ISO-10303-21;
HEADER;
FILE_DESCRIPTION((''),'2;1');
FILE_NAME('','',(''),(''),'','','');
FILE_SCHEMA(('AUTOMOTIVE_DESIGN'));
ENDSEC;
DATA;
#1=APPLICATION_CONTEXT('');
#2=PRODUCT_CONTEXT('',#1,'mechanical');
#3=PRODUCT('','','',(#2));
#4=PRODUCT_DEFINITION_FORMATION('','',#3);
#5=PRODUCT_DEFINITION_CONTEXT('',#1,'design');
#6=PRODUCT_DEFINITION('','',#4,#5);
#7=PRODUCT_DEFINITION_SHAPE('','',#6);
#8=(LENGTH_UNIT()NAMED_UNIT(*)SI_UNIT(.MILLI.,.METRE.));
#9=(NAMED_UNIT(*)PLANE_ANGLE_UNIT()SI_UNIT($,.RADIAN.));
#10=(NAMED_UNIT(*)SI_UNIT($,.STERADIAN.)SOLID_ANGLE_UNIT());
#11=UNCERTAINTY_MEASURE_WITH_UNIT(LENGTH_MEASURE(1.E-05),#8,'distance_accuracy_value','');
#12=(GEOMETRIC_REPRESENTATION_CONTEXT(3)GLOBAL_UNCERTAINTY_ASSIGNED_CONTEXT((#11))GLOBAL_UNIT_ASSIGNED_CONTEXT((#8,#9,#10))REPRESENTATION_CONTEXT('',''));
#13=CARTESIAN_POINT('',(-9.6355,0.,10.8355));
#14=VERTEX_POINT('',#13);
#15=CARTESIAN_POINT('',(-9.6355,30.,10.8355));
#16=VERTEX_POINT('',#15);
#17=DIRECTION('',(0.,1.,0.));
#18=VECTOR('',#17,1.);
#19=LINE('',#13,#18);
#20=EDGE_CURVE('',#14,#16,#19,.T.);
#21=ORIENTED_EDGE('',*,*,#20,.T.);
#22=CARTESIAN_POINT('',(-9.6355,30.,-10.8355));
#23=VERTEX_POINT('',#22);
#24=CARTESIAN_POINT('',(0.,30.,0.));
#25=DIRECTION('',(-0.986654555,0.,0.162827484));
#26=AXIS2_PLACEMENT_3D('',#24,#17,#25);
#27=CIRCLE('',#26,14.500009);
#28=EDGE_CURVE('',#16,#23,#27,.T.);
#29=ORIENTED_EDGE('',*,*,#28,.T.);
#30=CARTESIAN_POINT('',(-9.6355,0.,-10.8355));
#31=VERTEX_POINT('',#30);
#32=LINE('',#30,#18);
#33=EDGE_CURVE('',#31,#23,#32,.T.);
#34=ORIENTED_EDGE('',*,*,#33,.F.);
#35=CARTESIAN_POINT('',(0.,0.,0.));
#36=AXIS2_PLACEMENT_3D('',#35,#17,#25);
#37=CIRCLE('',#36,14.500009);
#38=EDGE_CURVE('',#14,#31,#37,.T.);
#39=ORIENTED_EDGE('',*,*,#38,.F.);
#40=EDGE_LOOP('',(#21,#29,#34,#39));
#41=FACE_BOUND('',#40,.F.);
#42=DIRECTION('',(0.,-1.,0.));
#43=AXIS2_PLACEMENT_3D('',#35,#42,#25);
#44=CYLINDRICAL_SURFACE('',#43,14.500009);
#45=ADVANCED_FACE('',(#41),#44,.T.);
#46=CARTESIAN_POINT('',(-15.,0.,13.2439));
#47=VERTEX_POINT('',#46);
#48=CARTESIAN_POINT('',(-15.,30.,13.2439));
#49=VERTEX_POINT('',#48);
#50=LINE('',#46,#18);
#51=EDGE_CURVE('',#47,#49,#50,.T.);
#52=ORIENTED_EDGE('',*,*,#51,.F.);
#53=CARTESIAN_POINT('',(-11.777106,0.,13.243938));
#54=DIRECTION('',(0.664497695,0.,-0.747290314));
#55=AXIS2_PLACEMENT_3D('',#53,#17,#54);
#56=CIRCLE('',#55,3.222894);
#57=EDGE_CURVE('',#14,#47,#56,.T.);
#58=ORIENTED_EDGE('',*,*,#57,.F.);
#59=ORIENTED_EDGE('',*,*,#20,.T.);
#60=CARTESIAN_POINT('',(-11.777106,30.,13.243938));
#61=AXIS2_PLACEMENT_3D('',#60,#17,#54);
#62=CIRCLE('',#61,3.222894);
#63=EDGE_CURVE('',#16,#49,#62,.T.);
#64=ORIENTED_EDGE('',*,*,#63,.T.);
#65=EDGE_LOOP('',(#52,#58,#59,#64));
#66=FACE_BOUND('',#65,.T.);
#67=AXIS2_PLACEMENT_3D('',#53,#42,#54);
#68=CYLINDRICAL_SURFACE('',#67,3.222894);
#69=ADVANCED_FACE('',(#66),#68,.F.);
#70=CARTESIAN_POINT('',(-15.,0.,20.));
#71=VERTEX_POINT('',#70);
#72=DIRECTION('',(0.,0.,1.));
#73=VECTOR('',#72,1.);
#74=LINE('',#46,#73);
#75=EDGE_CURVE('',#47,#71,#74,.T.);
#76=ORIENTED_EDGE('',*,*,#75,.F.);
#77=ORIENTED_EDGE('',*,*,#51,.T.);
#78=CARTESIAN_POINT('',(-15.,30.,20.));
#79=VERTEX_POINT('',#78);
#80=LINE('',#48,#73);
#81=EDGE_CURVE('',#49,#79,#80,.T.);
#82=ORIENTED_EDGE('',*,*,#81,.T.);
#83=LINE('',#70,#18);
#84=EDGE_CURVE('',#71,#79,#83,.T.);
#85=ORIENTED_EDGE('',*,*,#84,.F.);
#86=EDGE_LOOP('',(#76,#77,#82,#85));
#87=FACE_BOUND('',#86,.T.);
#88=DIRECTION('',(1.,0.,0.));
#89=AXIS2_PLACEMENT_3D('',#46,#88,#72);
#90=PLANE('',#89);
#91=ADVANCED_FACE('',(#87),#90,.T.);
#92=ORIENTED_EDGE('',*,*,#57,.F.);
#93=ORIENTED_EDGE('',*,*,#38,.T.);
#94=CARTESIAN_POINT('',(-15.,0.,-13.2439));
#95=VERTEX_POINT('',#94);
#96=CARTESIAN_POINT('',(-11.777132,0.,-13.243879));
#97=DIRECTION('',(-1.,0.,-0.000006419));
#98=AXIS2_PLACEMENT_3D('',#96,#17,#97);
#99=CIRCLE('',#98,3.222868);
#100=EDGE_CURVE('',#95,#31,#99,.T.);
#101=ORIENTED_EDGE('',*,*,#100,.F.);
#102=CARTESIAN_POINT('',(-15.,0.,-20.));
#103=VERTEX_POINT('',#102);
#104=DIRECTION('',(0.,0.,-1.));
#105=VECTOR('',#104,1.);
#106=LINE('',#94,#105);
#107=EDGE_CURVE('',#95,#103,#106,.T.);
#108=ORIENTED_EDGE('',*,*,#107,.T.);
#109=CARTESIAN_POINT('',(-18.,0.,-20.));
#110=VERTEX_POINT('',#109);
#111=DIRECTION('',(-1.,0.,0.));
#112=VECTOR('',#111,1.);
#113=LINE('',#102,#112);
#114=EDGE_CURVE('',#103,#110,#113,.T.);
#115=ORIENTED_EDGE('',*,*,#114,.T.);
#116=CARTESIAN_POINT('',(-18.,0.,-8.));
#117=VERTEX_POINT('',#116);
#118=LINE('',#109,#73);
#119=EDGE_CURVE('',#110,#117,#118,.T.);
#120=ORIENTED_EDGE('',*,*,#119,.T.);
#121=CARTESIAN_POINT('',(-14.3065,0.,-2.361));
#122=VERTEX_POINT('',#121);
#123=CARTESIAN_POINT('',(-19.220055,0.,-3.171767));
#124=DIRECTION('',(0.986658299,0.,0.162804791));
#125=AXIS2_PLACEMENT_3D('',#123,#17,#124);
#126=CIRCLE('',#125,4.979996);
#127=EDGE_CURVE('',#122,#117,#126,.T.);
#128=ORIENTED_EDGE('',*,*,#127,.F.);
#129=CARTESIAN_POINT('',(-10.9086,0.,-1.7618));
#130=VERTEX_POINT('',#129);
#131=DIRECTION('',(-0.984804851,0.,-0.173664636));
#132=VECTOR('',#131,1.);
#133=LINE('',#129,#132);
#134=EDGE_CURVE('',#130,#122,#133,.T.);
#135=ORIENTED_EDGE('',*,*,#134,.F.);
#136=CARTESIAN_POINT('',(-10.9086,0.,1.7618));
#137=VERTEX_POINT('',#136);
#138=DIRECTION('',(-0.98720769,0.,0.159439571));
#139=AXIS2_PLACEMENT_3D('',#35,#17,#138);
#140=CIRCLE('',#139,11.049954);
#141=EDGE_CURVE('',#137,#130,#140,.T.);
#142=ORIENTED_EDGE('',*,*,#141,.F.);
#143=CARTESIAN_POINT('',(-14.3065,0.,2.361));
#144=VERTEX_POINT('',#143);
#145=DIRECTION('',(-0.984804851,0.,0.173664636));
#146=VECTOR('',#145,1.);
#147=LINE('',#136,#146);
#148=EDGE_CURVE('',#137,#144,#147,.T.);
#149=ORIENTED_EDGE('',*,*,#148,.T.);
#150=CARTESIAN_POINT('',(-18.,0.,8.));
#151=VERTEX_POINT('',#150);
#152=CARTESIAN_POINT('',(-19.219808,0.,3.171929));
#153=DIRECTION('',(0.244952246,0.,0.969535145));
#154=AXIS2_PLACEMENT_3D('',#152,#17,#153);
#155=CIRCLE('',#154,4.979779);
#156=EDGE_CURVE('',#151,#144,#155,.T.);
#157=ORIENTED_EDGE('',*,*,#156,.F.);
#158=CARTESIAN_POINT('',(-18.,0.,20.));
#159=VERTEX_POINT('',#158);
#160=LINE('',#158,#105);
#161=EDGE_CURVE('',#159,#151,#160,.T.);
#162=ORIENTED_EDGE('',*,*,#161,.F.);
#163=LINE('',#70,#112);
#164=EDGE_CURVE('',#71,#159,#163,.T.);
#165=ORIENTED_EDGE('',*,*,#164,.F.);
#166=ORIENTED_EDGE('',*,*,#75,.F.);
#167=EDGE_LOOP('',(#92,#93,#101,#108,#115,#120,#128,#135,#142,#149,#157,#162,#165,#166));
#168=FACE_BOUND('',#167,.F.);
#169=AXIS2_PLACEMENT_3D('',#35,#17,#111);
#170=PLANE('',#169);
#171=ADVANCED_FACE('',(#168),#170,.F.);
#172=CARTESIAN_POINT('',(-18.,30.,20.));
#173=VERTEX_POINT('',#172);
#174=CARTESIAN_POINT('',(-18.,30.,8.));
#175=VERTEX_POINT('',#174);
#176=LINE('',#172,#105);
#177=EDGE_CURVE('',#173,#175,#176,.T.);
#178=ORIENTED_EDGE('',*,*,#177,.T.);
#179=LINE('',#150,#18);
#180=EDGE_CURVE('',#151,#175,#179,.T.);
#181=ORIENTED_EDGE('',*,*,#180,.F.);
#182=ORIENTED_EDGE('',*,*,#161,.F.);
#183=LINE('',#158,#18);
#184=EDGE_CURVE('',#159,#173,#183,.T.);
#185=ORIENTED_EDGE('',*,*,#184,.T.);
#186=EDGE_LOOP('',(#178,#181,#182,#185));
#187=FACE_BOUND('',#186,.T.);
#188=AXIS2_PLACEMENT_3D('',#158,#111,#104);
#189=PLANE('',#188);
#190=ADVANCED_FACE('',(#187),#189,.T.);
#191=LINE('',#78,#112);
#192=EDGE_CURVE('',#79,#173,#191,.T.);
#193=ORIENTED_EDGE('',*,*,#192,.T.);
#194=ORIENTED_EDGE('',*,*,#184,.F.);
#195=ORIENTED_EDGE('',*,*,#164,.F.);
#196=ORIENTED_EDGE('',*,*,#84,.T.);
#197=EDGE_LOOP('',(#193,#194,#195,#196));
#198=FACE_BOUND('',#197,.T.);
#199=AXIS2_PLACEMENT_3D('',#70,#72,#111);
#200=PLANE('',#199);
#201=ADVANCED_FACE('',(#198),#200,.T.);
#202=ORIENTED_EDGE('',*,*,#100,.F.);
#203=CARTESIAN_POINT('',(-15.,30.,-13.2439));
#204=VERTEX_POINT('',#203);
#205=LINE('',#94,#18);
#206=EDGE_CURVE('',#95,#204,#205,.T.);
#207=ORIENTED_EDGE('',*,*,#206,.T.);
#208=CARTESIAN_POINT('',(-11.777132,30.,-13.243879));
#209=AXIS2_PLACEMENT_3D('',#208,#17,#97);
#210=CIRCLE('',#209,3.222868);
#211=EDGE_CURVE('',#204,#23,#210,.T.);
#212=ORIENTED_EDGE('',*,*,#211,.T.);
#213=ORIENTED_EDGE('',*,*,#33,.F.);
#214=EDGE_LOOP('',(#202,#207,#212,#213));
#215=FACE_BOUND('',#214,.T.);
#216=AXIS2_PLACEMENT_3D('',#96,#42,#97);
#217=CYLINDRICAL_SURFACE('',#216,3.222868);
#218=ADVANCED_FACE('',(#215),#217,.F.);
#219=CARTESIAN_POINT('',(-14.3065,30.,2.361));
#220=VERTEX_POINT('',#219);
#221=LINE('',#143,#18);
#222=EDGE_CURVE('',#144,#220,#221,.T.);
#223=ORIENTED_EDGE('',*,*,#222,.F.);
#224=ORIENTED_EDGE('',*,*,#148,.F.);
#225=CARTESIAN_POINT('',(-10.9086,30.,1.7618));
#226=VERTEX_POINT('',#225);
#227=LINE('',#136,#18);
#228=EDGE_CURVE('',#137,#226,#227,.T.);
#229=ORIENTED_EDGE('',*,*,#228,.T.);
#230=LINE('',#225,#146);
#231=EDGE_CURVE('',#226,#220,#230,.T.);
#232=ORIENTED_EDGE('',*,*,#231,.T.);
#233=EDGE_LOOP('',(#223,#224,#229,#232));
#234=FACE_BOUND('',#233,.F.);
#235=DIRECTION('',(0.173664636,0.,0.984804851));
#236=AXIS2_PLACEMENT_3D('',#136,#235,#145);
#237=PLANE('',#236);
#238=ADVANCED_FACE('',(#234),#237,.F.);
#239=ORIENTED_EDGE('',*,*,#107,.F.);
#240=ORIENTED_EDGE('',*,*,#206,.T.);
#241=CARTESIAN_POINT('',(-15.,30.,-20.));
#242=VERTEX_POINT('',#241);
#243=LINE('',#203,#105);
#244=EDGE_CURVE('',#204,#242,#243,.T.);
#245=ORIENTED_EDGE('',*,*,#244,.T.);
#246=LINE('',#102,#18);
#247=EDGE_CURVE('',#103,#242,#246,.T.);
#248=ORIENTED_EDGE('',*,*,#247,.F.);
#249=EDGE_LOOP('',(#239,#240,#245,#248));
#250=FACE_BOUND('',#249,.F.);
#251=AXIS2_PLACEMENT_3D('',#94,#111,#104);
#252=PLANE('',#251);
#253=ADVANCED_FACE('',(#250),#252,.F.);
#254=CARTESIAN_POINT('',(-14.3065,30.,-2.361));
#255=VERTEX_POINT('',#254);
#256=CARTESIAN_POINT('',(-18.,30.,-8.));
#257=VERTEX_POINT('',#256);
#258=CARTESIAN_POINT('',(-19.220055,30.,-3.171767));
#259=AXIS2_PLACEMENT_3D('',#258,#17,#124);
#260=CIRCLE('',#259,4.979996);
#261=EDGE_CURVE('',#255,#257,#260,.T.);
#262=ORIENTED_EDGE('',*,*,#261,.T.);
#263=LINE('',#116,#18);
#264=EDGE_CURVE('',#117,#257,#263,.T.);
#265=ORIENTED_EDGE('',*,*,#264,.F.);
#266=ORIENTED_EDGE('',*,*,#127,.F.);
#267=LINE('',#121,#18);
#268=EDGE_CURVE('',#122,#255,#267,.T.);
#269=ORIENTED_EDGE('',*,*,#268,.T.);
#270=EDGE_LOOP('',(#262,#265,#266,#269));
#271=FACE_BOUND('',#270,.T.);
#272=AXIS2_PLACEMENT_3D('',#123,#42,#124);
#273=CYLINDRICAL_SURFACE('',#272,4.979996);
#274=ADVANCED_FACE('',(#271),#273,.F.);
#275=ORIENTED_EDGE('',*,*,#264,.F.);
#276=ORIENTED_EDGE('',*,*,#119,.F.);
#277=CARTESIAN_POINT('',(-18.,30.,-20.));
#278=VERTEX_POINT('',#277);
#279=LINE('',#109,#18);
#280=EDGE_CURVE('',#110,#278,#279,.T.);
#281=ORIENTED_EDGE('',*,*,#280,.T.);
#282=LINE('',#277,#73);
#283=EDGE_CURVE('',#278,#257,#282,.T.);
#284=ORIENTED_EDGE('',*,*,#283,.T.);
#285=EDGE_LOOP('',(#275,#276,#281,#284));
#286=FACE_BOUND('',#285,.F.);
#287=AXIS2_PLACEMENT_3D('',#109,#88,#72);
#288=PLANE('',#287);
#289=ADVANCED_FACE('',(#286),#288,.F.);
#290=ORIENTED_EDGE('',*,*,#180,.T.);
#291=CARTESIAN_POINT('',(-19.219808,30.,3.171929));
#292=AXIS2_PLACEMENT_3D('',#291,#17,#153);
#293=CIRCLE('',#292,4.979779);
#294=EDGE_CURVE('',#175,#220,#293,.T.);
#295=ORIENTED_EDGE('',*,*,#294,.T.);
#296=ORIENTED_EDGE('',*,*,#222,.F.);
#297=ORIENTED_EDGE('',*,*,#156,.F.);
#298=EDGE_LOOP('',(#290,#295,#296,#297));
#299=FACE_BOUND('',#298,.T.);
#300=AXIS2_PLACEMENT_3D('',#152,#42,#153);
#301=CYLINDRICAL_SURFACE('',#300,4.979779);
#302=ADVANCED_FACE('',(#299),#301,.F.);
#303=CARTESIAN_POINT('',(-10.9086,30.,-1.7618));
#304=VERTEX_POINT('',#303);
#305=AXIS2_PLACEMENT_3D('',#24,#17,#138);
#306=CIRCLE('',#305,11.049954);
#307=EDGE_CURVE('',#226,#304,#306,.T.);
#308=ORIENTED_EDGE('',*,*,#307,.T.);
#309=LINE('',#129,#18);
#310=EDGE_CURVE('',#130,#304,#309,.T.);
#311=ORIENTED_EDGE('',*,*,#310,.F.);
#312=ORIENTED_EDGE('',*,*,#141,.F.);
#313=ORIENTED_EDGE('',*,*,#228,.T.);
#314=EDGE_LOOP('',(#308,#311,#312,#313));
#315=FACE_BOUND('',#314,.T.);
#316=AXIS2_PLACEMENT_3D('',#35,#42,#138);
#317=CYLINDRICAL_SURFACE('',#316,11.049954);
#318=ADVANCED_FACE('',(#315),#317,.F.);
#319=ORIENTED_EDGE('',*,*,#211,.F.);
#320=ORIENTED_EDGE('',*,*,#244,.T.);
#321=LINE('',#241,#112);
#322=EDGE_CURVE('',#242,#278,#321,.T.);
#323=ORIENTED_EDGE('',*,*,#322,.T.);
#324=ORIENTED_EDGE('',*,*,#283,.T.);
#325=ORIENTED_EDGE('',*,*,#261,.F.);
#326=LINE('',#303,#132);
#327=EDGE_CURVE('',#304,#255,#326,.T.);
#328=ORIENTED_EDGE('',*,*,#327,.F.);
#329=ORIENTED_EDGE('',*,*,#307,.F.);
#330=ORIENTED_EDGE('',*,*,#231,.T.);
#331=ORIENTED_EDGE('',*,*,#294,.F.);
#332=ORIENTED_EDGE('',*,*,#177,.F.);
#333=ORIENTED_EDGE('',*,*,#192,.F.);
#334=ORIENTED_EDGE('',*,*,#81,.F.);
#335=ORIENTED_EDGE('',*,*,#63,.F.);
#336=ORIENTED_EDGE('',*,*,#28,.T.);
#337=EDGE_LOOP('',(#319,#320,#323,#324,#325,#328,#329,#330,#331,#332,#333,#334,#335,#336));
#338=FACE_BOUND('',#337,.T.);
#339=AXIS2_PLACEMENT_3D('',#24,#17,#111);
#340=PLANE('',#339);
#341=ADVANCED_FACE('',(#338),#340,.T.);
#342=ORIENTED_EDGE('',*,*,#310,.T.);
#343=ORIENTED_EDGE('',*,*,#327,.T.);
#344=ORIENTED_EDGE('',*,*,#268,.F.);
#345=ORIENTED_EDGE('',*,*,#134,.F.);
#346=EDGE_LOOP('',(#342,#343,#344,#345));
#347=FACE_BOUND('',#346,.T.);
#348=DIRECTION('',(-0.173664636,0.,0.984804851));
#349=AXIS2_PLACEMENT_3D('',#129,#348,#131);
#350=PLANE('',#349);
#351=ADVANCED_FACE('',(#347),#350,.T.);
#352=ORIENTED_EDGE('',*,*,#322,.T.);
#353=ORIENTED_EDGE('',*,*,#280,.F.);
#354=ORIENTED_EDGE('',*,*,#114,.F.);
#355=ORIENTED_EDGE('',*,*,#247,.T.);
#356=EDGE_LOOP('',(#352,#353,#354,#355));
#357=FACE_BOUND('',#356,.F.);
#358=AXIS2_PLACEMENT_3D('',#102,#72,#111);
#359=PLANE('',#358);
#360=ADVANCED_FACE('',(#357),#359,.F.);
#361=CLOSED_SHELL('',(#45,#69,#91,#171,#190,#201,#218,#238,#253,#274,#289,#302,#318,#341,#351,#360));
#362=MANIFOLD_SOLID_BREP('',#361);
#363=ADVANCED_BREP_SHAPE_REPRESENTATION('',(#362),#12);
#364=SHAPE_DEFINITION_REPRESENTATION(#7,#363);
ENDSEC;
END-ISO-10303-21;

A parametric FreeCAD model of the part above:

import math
import FreeCAD as App
import Part
import Sketcher

V = App.Vector
Q = App.Units.Quantity

doc = App.newDocument("Part")
body = doc.addObject("PartDesign::Body", "Body")

# Sketch on XZ plane
sketch1 = body.newObject("Sketcher::SketchObject", "Sketch")
sketch1.AttachmentSupport = (doc.getObject("XZ_Plane"), [""])
sketch1.MapMode = "FlatFace"
sketch1.addGeometry(Part.ArcOfCircle(Part.Circle(V(0, 0, 0), V(0, 0, 1), 11.049954), math.radians(-170.825632), math.radians(170.825632)), False)
sketch1.addGeometry(Part.LineSegment(V(-10.9086, 1.7618, 0), V(-14.3065, 2.361, 0)), False)
sketch1.addGeometry(Part.ArcOfCircle(Part.Circle(V(-19.2199, 3.1718, 0), V(0, 0, 1), 4.979927), math.radians(-9.370395), math.radians(75.820327)), False)
sketch1.addGeometry(Part.LineSegment(V(-18, 8, 0), V(-18, 20, 0)), False)
sketch1.addGeometry(Part.LineSegment(V(-18, 20, 0), V(-15, 20, 0)), False)
sketch1.addGeometry(Part.LineSegment(V(-15, 20, 0), V(-15, 13.2439, 0)), False)
sketch1.addGeometry(Part.ArcOfCircle(Part.Circle(V(-11.7771, 13.2439, 0), V(0, 0, 1), 3.222862), math.radians(180), math.radians(311.644169)), False)
sketch1.addGeometry(Part.ArcOfCircle(Part.Circle(V(0, 0, 0), V(0, 0, 1), 14.500009), math.radians(-131.645189), math.radians(131.645189)), False)
sketch1.addGeometry(Part.ArcOfCircle(Part.Circle(V(-11.7771, -13.2439, 0), V(0, 0, 1), 3.2229), math.radians(48.355831), math.radians(180)), False)
sketch1.addGeometry(Part.LineSegment(V(-15, -13.2439, 0), V(-15, -20, 0)), False)
sketch1.addGeometry(Part.LineSegment(V(-15, -20, 0), V(-18, -20, 0)), False)
sketch1.addGeometry(Part.LineSegment(V(-18, -20, 0), V(-18, -8, 0)), False)
sketch1.addGeometry(Part.ArcOfCircle(Part.Circle(V(-19.2199, -3.1718, 0), V(0, 0, 1), 4.979849), math.radians(-75.820327), math.radians(9.370395)), False)
sketch1.addGeometry(Part.LineSegment(V(-14.3065, -2.361, 0), V(-10.9086, -1.7618, 0)), False)
sketch1.addConstraint(Sketcher.Constraint("Coincident", 0, 2, 1, 1))
sketch1.addConstraint(Sketcher.Constraint("Coincident", 1, 2, 2, 1))
sketch1.addConstraint(Sketcher.Constraint("Coincident", 2, 2, 3, 1))
sketch1.addConstraint(Sketcher.Constraint("Coincident", 3, 2, 4, 1))
sketch1.addConstraint(Sketcher.Constraint("Coincident", 4, 2, 5, 1))
sketch1.addConstraint(Sketcher.Constraint("Tangent", 5, 2, 6, 1))
sketch1.addConstraint(Sketcher.Constraint("Tangent", 6, 2, 7, 2))
sketch1.addConstraint(Sketcher.Constraint("Tangent", 7, 1, 8, 1))
sketch1.addConstraint(Sketcher.Constraint("Tangent", 8, 2, 9, 1))
sketch1.addConstraint(Sketcher.Constraint("Coincident", 9, 2, 10, 1))
sketch1.addConstraint(Sketcher.Constraint("Coincident", 10, 2, 11, 1))
sketch1.addConstraint(Sketcher.Constraint("Coincident", 11, 2, 12, 1))
sketch1.addConstraint(Sketcher.Constraint("Coincident", 12, 2, 13, 1))
sketch1.addConstraint(Sketcher.Constraint("Coincident", 13, 2, 0, 1))
sketch1.addConstraint(Sketcher.Constraint("Vertical", 3))
sketch1.addConstraint(Sketcher.Constraint("Horizontal", 4))
sketch1.addConstraint(Sketcher.Constraint("Vertical", 5))
sketch1.addConstraint(Sketcher.Constraint("Vertical", 9))
sketch1.addConstraint(Sketcher.Constraint("Horizontal", 10))
sketch1.addConstraint(Sketcher.Constraint("Vertical", 11))
sketch1.addConstraint(Sketcher.Constraint("Coincident", 0, 3, -1, 1))
sketch1.addConstraint(Sketcher.Constraint("Coincident", 7, 3, -1, 1))
sketch1.addConstraint(Sketcher.Constraint("Equal", 6, 8))
sketch1.addConstraint(Sketcher.Constraint("Equal", 2, 12))
sketch1.addConstraint(Sketcher.Constraint("Symmetric", 2, 3, 12, 3, -1))
sketch1.addConstraint(Sketcher.Constraint("Symmetric", 4, 2, 9, 2, -1))
sketch1.addConstraint(Sketcher.Constraint("Vertical", 3, 2, 10, 2))
sketch1.addConstraint(Sketcher.Constraint("Vertical", 1, 2, 12, 2))
sketch1.addConstraint(Sketcher.Constraint("Vertical", 0, 2, 13, 2))
sketch1.addConstraint(Sketcher.Constraint("Radius", 7, Q("14.5 mm")))
sketch1.addConstraint(Sketcher.Constraint("DistanceX", 4, 1, 4, 2, Q("3 mm")))
sketch1.addConstraint(Sketcher.Constraint("DistanceY", 3, 1, 3, 2, Q("12 mm")))
sketch1.addConstraint(Sketcher.Constraint("Radius", 0, Q("11.05 mm")))
sketch1.addConstraint(Sketcher.Constraint("DistanceY", -1, 1, 3, 2, Q("20 mm")))
sketch1.addConstraint(Sketcher.Constraint("DistanceX", 4, 2, -1, 1, Q("15 mm")))
sketch1.addConstraint(Sketcher.Constraint("Angle", 1, Q("169.999 deg")))
sketch1.addConstraint(Sketcher.Constraint("Radius", 2, Q("4.98 mm")))
sketch1.addConstraint(Sketcher.Constraint("Radius", 8, Q("3.223 mm")))
sketch1.addConstraint(Sketcher.Constraint("DistanceY", -1, 1, 0, 2, Q("1.7618 mm")))
sketch1.addConstraint(Sketcher.Constraint("DistanceX", 2, 3, -1, 1, Q("19.22 mm")))
pad1 = body.newObject("PartDesign::Pad", "Pad")
pad1.Profile = sketch1
pad1.Length = 30
pad1.Reversed = True

doc.recompute()
